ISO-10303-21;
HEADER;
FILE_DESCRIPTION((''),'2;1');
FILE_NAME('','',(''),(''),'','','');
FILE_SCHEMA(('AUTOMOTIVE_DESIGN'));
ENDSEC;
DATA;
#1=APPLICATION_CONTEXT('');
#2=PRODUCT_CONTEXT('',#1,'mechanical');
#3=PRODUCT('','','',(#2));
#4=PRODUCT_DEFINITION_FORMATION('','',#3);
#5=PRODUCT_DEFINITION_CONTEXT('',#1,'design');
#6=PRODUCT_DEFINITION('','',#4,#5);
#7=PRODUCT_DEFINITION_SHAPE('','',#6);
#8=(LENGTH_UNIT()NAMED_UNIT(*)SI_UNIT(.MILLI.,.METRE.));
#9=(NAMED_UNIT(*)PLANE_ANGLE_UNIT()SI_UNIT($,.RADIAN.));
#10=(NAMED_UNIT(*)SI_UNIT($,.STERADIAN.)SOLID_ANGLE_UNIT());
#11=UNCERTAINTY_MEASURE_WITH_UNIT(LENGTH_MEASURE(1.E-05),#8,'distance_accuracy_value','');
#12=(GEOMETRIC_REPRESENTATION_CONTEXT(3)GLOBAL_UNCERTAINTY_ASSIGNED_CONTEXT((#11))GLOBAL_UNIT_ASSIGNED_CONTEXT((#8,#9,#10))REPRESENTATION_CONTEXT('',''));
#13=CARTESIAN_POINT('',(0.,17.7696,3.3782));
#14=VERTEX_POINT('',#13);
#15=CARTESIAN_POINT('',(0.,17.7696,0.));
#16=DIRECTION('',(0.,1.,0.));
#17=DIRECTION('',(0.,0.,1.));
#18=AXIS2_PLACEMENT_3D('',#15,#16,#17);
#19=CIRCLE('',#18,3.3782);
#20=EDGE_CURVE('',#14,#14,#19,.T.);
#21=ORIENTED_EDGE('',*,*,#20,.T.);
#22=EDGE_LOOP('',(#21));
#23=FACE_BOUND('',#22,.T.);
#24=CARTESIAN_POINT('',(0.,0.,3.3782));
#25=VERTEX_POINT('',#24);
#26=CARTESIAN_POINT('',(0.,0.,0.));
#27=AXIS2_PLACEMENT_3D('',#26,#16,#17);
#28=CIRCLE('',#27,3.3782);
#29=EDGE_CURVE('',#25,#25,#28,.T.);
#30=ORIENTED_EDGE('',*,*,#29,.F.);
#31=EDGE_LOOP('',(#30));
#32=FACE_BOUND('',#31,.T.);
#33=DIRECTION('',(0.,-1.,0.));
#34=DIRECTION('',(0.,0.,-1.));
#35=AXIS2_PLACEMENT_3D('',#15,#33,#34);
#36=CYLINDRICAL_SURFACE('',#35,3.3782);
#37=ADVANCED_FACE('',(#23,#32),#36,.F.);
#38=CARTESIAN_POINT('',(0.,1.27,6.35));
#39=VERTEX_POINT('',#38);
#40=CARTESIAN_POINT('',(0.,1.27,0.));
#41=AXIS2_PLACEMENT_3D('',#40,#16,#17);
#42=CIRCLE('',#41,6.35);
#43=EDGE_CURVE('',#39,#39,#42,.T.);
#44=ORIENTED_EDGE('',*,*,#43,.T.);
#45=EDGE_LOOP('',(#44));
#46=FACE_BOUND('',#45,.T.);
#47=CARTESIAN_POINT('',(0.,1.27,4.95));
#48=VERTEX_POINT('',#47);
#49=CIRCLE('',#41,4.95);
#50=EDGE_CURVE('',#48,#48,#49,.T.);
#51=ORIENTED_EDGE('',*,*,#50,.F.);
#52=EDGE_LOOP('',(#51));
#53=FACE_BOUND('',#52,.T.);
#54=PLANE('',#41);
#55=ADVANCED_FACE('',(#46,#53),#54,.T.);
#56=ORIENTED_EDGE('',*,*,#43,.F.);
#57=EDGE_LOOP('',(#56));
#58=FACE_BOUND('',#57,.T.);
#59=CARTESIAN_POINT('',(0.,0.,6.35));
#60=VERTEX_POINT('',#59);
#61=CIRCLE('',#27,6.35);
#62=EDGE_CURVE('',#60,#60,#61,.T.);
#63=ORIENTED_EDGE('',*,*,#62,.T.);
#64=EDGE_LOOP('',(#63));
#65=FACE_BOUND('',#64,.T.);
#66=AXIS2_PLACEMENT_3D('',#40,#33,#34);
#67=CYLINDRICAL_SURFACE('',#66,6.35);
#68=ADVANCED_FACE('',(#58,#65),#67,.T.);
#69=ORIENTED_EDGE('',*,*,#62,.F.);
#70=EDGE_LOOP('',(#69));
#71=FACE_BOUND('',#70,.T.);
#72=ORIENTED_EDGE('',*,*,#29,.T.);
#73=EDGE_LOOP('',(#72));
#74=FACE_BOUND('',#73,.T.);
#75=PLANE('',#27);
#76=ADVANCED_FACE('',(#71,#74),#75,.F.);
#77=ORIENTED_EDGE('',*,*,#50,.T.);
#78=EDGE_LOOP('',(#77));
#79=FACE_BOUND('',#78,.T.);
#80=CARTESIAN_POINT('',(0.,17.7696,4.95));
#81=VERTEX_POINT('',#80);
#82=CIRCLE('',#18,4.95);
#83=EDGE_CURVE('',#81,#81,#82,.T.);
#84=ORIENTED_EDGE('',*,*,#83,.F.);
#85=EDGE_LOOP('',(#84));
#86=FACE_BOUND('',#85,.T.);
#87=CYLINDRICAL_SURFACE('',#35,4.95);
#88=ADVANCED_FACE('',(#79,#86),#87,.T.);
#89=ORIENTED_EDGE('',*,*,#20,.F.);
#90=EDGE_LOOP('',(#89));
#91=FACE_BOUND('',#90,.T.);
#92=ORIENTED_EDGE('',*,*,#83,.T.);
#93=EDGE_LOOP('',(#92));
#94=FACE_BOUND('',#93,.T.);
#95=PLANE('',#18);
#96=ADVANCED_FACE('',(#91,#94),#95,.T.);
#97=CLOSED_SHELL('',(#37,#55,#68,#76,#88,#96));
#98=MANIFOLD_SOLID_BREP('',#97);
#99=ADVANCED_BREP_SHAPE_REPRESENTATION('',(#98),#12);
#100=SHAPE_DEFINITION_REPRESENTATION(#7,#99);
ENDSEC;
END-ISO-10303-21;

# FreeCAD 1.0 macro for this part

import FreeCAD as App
import Part
import Sketcher
from FreeCAD import Vector
Q = App.Units.Quantity

doc = App.newDocument("Part")
body = doc.addObject("PartDesign::Body", "Body")

sketch1 = doc.addObject("Sketcher::SketchObject", "Sketch")
body.addObject(sketch1)
sketch1.AttachmentSupport = (doc.XZ_Plane, [""])
sketch1.MapMode = "FlatFace"
sketch1.addGeometry(Part.Circle(Vector(0, 0, 0), Vector(0, 0, 1), 6.35), False)
sketch1.addConstraint(Sketcher.Constraint("Coincident", 0, 3, -1, 1))
sketch1.addConstraint(Sketcher.Constraint("Diameter", 0, Q("0.5 in")))
pad1 = doc.addObject("PartDesign::Pad", "Pad")
body.addObject(pad1)
pad1.Profile = sketch1
pad1.Length = Q("0.05 in")
pad1.Reversed = True

sketch2 = doc.addObject("Sketcher::SketchObject", "Sketch001")
body.addObject(sketch2)
sketch2.AttachmentSupport = (doc.XZ_Plane, [""])
sketch2.MapMode = "FlatFace"
sketch2.AttachmentOffset = App.Placement(Vector(0, 0, -0.05 * 25.4), App.Rotation())
sketch2.addGeometry(Part.Circle(Vector(0, 0, 0), Vector(0, 0, 1), 4.95), False)
sketch2.addGeometry(Part.Circle(Vector(0, 0, 0), Vector(0, 0, 1), 3.3782), False)
sketch2.addConstraint(Sketcher.Constraint("Coincident", 0, 3, -1, 1))
sketch2.addConstraint(Sketcher.Constraint("Coincident", 1, 3, -1, 1))
sketch2.addConstraint(Sketcher.Constraint("Diameter", 1, Q("0.266 in")))
sketch2.addConstraint(Sketcher.Constraint("Diameter", 0, Q("9.9 mm")))
pad2 = doc.addObject("PartDesign::Pad", "Pad001")
body.addObject(pad2)
pad2.Profile = sketch2
pad2.Length = 16.4996
pad2.Reversed = True

sketch3 = doc.addObject("Sketcher::SketchObject", "Sketch002")
body.addObject(sketch3)
sketch3.AttachmentSupport = (doc.XZ_Plane, [""])
sketch3.MapMode = "FlatFace"
sketch3.addGeometry(Part.Circle(Vector(0, 0, 0), Vector(0, 0, 1), 3.3782), False)
sketch3.addConstraint(Sketcher.Constraint("Coincident", 0, 3, -1, 1))
sketch3.addConstraint(Sketcher.Constraint("Diameter", 0, Q("0.266 in")))
pocket1 = doc.addObject("PartDesign::Pocket", "Pocket")
body.addObject(pocket1)
pocket1.Profile = sketch3
pocket1.Type = "ThroughAll"
pocket1.Midplane = True

doc.recompute()
